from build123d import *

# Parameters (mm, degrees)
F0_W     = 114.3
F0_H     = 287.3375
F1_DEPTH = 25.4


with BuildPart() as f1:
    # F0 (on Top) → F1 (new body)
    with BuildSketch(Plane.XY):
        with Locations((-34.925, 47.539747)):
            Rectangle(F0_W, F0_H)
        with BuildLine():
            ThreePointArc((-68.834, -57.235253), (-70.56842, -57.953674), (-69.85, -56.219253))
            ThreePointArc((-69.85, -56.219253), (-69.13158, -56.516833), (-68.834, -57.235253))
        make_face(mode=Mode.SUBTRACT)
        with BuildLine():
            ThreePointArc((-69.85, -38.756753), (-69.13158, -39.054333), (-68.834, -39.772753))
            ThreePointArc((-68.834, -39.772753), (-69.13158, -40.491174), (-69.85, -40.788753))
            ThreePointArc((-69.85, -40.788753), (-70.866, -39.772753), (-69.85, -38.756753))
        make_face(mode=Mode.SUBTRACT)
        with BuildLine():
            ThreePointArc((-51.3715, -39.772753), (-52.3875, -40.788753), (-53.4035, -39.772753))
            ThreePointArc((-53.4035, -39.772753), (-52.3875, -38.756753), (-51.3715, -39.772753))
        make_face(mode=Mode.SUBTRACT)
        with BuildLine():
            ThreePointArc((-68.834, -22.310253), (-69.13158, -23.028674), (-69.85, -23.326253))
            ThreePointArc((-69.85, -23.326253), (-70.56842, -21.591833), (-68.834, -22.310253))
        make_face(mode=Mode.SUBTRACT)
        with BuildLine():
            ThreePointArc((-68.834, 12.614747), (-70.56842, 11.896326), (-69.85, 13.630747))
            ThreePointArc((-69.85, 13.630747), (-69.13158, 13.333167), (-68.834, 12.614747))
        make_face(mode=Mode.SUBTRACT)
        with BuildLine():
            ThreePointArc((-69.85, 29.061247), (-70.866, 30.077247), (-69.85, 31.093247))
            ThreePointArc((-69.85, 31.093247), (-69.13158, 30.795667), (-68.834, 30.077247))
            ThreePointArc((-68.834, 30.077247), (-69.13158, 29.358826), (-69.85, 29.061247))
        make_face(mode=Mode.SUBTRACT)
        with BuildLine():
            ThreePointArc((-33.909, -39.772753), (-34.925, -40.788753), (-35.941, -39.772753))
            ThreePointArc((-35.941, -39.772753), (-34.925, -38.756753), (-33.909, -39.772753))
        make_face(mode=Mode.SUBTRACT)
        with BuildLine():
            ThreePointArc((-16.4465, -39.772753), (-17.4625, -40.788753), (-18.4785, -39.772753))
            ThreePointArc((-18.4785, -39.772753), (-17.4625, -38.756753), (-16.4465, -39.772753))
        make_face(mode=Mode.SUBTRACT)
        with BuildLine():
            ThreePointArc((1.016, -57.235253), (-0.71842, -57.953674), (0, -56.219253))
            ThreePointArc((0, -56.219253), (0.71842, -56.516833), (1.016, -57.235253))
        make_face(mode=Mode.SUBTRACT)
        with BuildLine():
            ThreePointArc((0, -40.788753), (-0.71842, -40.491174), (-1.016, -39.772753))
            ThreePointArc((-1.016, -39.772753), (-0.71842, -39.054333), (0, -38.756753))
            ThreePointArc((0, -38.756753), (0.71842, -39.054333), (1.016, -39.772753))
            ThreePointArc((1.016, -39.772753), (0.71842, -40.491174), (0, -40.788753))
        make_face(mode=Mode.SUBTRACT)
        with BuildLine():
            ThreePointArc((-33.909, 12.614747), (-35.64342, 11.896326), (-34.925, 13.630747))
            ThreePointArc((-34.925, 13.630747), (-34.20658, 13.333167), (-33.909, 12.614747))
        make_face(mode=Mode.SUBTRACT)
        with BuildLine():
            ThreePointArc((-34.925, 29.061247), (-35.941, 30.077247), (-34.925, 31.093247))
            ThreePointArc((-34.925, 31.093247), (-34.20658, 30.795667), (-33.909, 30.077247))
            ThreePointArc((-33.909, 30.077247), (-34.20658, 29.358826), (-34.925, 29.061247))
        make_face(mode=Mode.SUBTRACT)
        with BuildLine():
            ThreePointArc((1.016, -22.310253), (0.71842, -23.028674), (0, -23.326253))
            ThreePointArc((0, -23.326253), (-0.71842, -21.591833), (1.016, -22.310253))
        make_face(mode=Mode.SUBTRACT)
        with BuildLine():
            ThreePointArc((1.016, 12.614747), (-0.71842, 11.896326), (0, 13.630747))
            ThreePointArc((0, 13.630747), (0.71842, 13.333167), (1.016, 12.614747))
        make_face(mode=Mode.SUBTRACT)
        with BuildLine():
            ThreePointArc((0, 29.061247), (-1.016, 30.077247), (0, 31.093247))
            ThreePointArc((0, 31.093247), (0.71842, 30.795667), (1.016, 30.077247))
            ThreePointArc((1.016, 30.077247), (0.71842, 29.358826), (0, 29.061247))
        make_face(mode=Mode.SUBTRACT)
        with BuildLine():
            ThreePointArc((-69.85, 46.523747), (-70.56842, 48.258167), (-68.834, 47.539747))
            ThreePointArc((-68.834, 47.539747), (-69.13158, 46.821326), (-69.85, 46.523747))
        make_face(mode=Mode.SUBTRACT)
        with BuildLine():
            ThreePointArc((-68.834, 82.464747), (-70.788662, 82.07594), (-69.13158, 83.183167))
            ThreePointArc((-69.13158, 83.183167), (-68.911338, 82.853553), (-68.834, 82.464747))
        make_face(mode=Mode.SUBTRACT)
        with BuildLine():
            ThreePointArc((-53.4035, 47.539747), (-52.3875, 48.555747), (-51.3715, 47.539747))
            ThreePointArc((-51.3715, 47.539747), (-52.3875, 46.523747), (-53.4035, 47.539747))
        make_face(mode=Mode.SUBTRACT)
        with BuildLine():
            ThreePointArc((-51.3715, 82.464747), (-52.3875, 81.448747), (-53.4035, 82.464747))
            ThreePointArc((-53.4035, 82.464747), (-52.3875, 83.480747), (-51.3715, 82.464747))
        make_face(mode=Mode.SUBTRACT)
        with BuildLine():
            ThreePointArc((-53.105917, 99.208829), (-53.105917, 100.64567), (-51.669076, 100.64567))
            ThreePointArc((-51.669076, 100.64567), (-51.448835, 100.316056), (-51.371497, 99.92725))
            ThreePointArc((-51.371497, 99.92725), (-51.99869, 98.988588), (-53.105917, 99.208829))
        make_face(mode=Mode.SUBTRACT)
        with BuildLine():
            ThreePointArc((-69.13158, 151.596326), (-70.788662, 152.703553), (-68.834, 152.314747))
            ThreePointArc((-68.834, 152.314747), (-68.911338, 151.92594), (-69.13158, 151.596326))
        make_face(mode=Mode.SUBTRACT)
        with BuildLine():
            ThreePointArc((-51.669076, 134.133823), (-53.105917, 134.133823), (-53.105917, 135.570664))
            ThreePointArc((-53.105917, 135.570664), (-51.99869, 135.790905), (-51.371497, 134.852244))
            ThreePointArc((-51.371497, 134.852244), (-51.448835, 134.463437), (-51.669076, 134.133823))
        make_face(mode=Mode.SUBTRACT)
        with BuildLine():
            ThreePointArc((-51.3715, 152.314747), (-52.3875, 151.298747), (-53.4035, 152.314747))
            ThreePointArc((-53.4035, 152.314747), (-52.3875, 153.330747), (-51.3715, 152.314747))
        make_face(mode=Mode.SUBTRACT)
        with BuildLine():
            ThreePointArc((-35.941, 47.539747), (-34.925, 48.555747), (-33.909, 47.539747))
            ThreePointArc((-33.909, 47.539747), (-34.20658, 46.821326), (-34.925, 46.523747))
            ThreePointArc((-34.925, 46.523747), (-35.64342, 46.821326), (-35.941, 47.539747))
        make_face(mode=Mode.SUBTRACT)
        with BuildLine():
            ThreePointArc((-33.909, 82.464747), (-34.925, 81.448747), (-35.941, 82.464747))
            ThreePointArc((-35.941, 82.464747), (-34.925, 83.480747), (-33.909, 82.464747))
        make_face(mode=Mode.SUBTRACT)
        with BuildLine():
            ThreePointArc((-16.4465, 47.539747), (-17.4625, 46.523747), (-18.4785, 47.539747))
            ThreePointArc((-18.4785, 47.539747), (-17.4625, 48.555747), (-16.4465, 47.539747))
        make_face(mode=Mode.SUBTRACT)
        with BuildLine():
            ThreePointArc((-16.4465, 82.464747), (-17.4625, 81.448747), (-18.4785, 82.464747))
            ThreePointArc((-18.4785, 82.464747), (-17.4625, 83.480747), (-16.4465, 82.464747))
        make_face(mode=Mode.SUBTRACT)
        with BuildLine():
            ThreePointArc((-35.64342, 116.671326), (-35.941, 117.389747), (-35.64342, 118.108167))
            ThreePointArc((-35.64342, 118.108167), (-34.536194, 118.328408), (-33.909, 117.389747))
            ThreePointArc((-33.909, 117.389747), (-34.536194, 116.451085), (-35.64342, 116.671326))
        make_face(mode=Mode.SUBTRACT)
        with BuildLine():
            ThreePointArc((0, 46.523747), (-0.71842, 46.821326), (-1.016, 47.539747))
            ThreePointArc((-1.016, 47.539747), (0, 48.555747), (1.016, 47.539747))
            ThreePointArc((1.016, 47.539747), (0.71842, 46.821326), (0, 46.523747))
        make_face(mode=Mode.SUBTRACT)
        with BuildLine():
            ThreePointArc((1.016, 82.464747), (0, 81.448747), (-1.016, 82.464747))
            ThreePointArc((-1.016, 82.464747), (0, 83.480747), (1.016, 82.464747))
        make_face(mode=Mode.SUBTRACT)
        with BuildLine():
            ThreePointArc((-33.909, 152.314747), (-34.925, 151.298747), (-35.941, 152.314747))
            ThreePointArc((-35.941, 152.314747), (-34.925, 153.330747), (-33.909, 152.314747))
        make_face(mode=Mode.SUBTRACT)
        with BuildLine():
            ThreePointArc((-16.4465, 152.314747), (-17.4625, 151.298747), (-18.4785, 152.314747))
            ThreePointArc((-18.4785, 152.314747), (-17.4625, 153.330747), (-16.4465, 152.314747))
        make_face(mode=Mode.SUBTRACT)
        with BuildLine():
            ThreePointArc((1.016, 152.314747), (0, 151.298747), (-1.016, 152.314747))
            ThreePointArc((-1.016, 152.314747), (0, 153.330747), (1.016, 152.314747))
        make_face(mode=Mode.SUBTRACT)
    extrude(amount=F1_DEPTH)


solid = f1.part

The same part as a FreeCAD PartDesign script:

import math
import FreeCAD as App
import Part
import Sketcher

V = App.Vector
Q = App.Units.Quantity

doc = App.newDocument("Part")
body = doc.addObject("PartDesign::Body", "Body")

# Sketch on XY plane
sketch1 = body.newObject("Sketcher::SketchObject", "Sketch")
sketch1.AttachmentSupport = (doc.getObject("XY_Plane"), [""])
sketch1.MapMode = "FlatFace"
sketch1.addGeometry([
    Part.LineSegment(V(-92.1, 191.2, 0), V(-92.1, -96.1, 0)),  # 0
    Part.LineSegment(V(-92.1, -96.1, 0), V(22.2, -96.1, 0)),  # 1
    Part.LineSegment(V(22.2, -96.1, 0), V(22.2, 191.2, 0)),  # 2
    Part.LineSegment(V(22.2, 191.2, 0), V(-92.1, 191.2, 0)),  # 3
    Part.ArcOfCircle(Part.Circle(V(-69.9, -57.2, 0), V(0, 0, 1), 1), math.radians(0), math.radians(90)),  # 4
    Part.ArcOfCircle(Part.Circle(V(-69.9, -57.2, 0), V(0, 0, 1), 1), math.radians(90), math.radians(360)),  # 5
    Part.ArcOfCircle(Part.Circle(V(-69.8, -39.8, 0), V(0, 0, 1), 1), math.radians(90), math.radians(270)),  # 6
    Part.ArcOfCircle(Part.Circle(V(-69.9, -39.8, 0), V(0, 0, 1), 1), math.radians(0), math.radians(90)),  # 7
    Part.ArcOfCircle(Part.Circle(V(-69.8, -39.8, 0), V(0, 0, 1), 1), math.radians(-90), math.radians(0)),  # 8
    Part.ArcOfCircle(Part.Circle(V(-69.8, -22.3, 0), V(0, 0, 1), 1), math.radians(0), math.radians(270)),  # 9
    Part.ArcOfCircle(Part.Circle(V(-69.8, -22.3, 0), V(0, 0, 1), 1), math.radians(-90), math.radians(0)),  # 10
    Part.Circle(V(-52.4, -39.8, 0), V(0, 0, 1), 1),  # 11
    Part.ArcOfCircle(Part.Circle(V(-69.9, 12.6, 0), V(0, 0, 1), 1), math.radians(0), math.radians(90)),  # 12
    Part.ArcOfCircle(Part.Circle(V(-69.9, 12.6, 0), V(0, 0, 1), 1), math.radians(90), math.radians(360)),  # 13
    Part.ArcOfCircle(Part.Circle(V(-69.8, 30.1, 0), V(0, 0, 1), 1), math.radians(-90), math.radians(0)),  # 14
    Part.ArcOfCircle(Part.Circle(V(-69.8, 30.1, 0), V(0, 0, 1), 1), math.radians(90), math.radians(270)),  # 15
    Part.ArcOfCircle(Part.Circle(V(-69.9, 30.1, 0), V(0, 0, 1), 1), math.radians(0), math.radians(90)),  # 16
    Part.ArcOfCircle(Part.Circle(V(-69.8, 47.5, 0), V(0, 0, 1), 1), math.radians(-90), math.radians(0)),  # 17
    Part.ArcOfCircle(Part.Circle(V(-69.8, 47.5, 0), V(0, 0, 1), 1), math.radians(0), math.radians(270)),  # 18
    Part.Circle(V(-52.4, 47.5, 0), V(0, 0, 1), 1),  # 19
    Part.Circle(V(-34.9, -39.8, 0), V(0, 0, 1), 1),  # 20
    Part.Circle(V(-17.5, -39.8, 0), V(0, 0, 1), 1),  # 21
    Part.ArcOfCircle(Part.Circle(V(0, -57.2, 0), V(0, 0, 1), 1), math.radians(0), math.radians(90)),  # 22
    Part.ArcOfCircle(Part.Circle(V(0, -57.2, 0), V(0, 0, 1), 1), math.radians(90), math.radians(360)),  # 23
    Part.ArcOfCircle(Part.Circle(V(0, -39.8, 0), V(0, 0, 1), 1), math.radians(-90), math.radians(0)),  # 24
    Part.ArcOfCircle(Part.Circle(V(0, -39.8, 0), V(0, 0, 1), 1), math.radians(180), math.radians(270)),  # 25
    Part.ArcOfCircle(Part.Circle(V(0, -39.8, 0), V(0, 0, 1), 1), math.radians(90), math.radians(180)),  # 26
    Part.ArcOfCircle(Part.Circle(V(0, -39.8, 0), V(0, 0, 1), 1), math.radians(0), math.radians(90)),  # 27
    Part.ArcOfCircle(Part.Circle(V(0, -22.3, 0), V(0, 0, 1), 1), math.radians(0), math.radians(270)),  # 28
    Part.ArcOfCircle(Part.Circle(V(0, -22.3, 0), V(0, 0, 1), 1), math.radians(-90), math.radians(0)),  # 29
    Part.ArcOfCircle(Part.Circle(V(-34.9, 12.6, 0), V(0, 0, 1), 1), math.radians(0), math.radians(90)),  # 30
    Part.ArcOfCircle(Part.Circle(V(-34.9, 12.6, 0), V(0, 0, 1), 1), math.radians(90), math.radians(360)),  # 31
    Part.ArcOfCircle(Part.Circle(V(-34.9, 30.1, 0), V(0, 0, 1), 1), math.radians(-90), math.radians(0)),  # 32
    Part.ArcOfCircle(Part.Circle(V(-34.9, 30.1, 0), V(0, 0, 1), 1), math.radians(90), math.radians(270)),  # 33
    Part.ArcOfCircle(Part.Circle(V(-34.9, 30.1, 0), V(0, 0, 1), 1), math.radians(0), math.radians(90)),  # 34
    Part.ArcOfCircle(Part.Circle(V(-34.9, 47.5, 0), V(0, 0, 1), 1), math.radians(180), math.radians(270)),  # 35
    Part.ArcOfCircle(Part.Circle(V(-34.9, 47.5, 0), V(0, 0, 1), 1), math.radians(0), math.radians(180)),  # 36
    Part.ArcOfCircle(Part.Circle(V(-34.9, 47.5, 0), V(0, 0, 1), 1), math.radians(-90), math.radians(0)),  # 37
    Part.Circle(V(-17.5, 47.5, 0), V(0, 0, 1), 1),  # 38
    Part.ArcOfCircle(Part.Circle(V(0, 12.6, 0), V(0, 0, 1), 1), math.radians(0), math.radians(90)),  # 39
    Part.ArcOfCircle(Part.Circle(V(0, 12.6, 0), V(0, 0, 1), 1), math.radians(90), math.radians(360)),  # 40
    Part.ArcOfCircle(Part.Circle(V(0, 30.1, 0), V(0, 0, 1), 1), math.radians(-90), math.radians(0)),  # 41
    Part.ArcOfCircle(Part.Circle(V(0, 30.1, 0), V(0, 0, 1), 1), math.radians(90), math.radians(270)),  # 42
    Part.ArcOfCircle(Part.Circle(V(0, 30.1, 0), V(0, 0, 1), 1), math.radians(0), math.radians(90)),  # 43
    Part.ArcOfCircle(Part.Circle(V(0, 47.5, 0), V(0, 0, 1), 1), math.radians(-90), math.radians(0)),  # 44
    Part.ArcOfCircle(Part.Circle(V(0, 47.5, 0), V(0, 0, 1), 1), math.radians(180), math.radians(270)),  # 45
    Part.ArcOfCircle(Part.Circle(V(0, 47.5, 0), V(0, 0, 1), 1), math.radians(0), math.radians(180)),  # 46
    Part.ArcOfCircle(Part.Circle(V(-69.8, 82.5, 0), V(0, 0, 1), 1), math.radians(0), math.radians(45)),  # 47
    Part.ArcOfCircle(Part.Circle(V(-69.9, 82.5, 0), V(0, 0, 1), 1), math.radians(45), math.radians(360)),  # 48
    Part.Circle(V(-52.4, 82.5, 0), V(0, 0, 1), 1),  # 49
    Part.ArcOfCircle(Part.Circle(V(-52.4, 99.9, 0), V(0, 0, 1), 1), math.radians(-135), math.radians(0)),  # 50
    Part.ArcOfCircle(Part.Circle(V(-52.4, 99.9, 0), V(0, 0, 1), 1), math.radians(45), math.radians(225)),  # 51
    Part.ArcOfCircle(Part.Circle(V(-52.4, 99.9, 0), V(0, 0, 1), 1), math.radians(0), math.radians(45)),  # 52
    Part.ArcOfCircle(Part.Circle(V(-69.8, 152.3, 0), V(0, 0, 1), 1), math.radians(-45), math.radians(0)),  # 53
    Part.ArcOfCircle(Part.Circle(V(-69.9, 152.3, 0), V(0, 0, 1), 1), math.radians(0), math.radians(315)),  # 54
    Part.ArcOfCircle(Part.Circle(V(-52.4, 134.9, 0), V(0, 0, 1), 1), math.radians(-45), math.radians(0)),  # 55
    Part.ArcOfCircle(Part.Circle(V(-52.4, 134.9, 0), V(0, 0, 1), 1), math.radians(135), math.radians(315)),  # 56
    Part.ArcOfCircle(Part.Circle(V(-52.4, 134.9, 0), V(0, 0, 1), 1), math.radians(0), math.radians(135)),  # 57
    Part.Circle(V(-52.4, 152.3, 0), V(0, 0, 1), 1),  # 58
    Part.Circle(V(-34.9, 82.5, 0), V(0, 0, 1), 1),  # 59
    Part.Circle(V(-17.5, 82.5, 0), V(0, 0, 1), 1),  # 60
    Part.Circle(V(0, 82.5, 0), V(0, 0, 1), 1),  # 61
    Part.ArcOfCircle(Part.Circle(V(-34.9, 117.4, 0), V(0, 0, 1), 1), math.radians(-135), math.radians(0)),  # 62
    Part.ArcOfCircle(Part.Circle(V(-34.9, 117.4, 0), V(0, 0, 1), 1), math.radians(135), math.radians(225)),  # 63
    Part.ArcOfCircle(Part.Circle(V(-34.9, 117.4, 0), V(0, 0, 1), 1), math.radians(0), math.radians(135)),  # 64
    Part.Circle(V(-34.9, 152.3, 0), V(0, 0, 1), 1),  # 65
    Part.Circle(V(-17.5, 152.3, 0), V(0, 0, 1), 1),  # 66
    Part.Circle(V(0, 152.3, 0), V(0, 0, 1), 1),  # 67
], False)
sketch1.addConstraint([
    Sketcher.Constraint("Coincident", 0, 2, 1, 1),
    Sketcher.Constraint("Coincident", 1, 2, 2, 1),
    Sketcher.Constraint("Coincident", 2, 2, 3, 1),
    Sketcher.Constraint("Coincident", 3, 2, 0, 1),
    Sketcher.Constraint("Tangent", 4, 1, 5, 2),
    Sketcher.Constraint("Coincident", 5, 1, 4, 2),
    Sketcher.Constraint("Tangent", 6, 1, 7, 2),
    Sketcher.Constraint("Tangent", 7, 1, 8, 2),
    Sketcher.Constraint("Tangent", 8, 1, 6, 2),
    Sketcher.Constraint("Tangent", 9, 1, 10, 2),
    Sketcher.Constraint("Coincident", 10, 1, 9, 2),
    Sketcher.Constraint("Tangent", 12, 1, 13, 2),
    Sketcher.Constraint("Coincident", 13, 1, 12, 2),
    Sketcher.Constraint("Tangent", 14, 1, 15, 2),
    Sketcher.Constraint("Tangent", 15, 1, 16, 2),
    Sketcher.Constraint("Tangent", 16, 1, 14, 2),
    Sketcher.Constraint("Tangent", 17, 1, 18, 2),
    Sketcher.Constraint("Coincident", 18, 1, 17, 2),
    Sketcher.Constraint("Tangent", 22, 1, 23, 2),
    Sketcher.Constraint("Coincident", 23, 1, 22, 2),
    Sketcher.Constraint("Tangent", 24, 1, 25, 2),
    Sketcher.Constraint("Tangent", 25, 1, 26, 2),
    Sketcher.Constraint("Coincident", 26, 1, 27, 2),
    Sketcher.Constraint("Tangent", 27, 1, 24, 2),
    Sketcher.Constraint("Tangent", 28, 1, 29, 2),
    Sketcher.Constraint("Coincident", 29, 1, 28, 2),
    Sketcher.Constraint("Tangent", 30, 1, 31, 2),
    Sketcher.Constraint("Coincident", 31, 1, 30, 2),
    Sketcher.Constraint("Tangent", 32, 1, 33, 2),
    Sketcher.Constraint("Tangent", 33, 1, 34, 2),
    Sketcher.Constraint("Tangent", 34, 1, 32, 2),
    Sketcher.Constraint("Tangent", 35, 1, 36, 2),
    Sketcher.Constraint("Tangent", 36, 1, 37, 2),
    Sketcher.Constraint("Tangent", 37, 1, 35, 2),
    Sketcher.Constraint("Tangent", 39, 1, 40, 2),
    Sketcher.Constraint("Coincident", 40, 1, 39, 2),
    Sketcher.Constraint("Tangent", 41, 1, 42, 2),
    Sketcher.Constraint("Tangent", 42, 1, 43, 2),
    Sketcher.Constraint("Tangent", 43, 1, 41, 2),
    Sketcher.Constraint("Tangent", 44, 1, 45, 2),
    Sketcher.Constraint("Tangent", 45, 1, 46, 2),
    Sketcher.Constraint("Tangent", 46, 1, 44, 2),
    Sketcher.Constraint("Coincident", 47, 1, 48, 2),
    Sketcher.Constraint("Coincident", 48, 1, 47, 2),
    Sketcher.Constraint("Tangent", 50, 1, 51, 2),
    Sketcher.Constraint("Tangent", 51, 1, 52, 2),
    Sketcher.Constraint("Tangent", 52, 1, 50, 2),
    Sketcher.Constraint("Coincident", 53, 1, 54, 2),
    Sketcher.Constraint("Coincident", 54, 1, 53, 2),
    Sketcher.Constraint("Tangent", 55, 1, 56, 2),
    Sketcher.Constraint("Tangent", 56, 1, 57, 2),
    Sketcher.Constraint("Tangent", 57, 1, 55, 2),
    Sketcher.Constraint("Tangent", 62, 1, 63, 2),
    Sketcher.Constraint("Tangent", 63, 1, 64, 2),
    Sketcher.Constraint("Tangent", 64, 1, 62, 2),
    Sketcher.Constraint("Vertical", 0),
    Sketcher.Constraint("Horizontal", 1),
    Sketcher.Constraint("Vertical", 2),
    Sketcher.Constraint("Horizontal", 3),
    Sketcher.Constraint("Coincident", 26, 3, 24, 3),
    Sketcher.Constraint("Equal", 5, 6),
    Sketcher.Constraint("Equal", 8, 9),
    Sketcher.Constraint("Equal", 10, 11),
    Sketcher.Constraint("Equal", 11, 12),
    Sketcher.Constraint("Equal", 13, 14),
    Sketcher.Constraint("Equal", 16, 17),
    Sketcher.Constraint("Equal", 18, 19),
    Sketcher.Constraint("Equal", 19, 20),
    Sketcher.Constraint("Equal", 20, 21),
    Sketcher.Constraint("Equal", 21, 22),
    Sketcher.Constraint("Equal", 23, 24),
    Sketcher.Constraint("Equal", 27, 28),
    Sketcher.Constraint("Equal", 29, 30),
    Sketcher.Constraint("Equal", 31, 32),
    Sketcher.Constraint("Equal", 34, 35),
    Sketcher.Constraint("Equal", 37, 38),
    Sketcher.Constraint("Equal", 38, 39),
    Sketcher.Constraint("Equal", 40, 41),
    Sketcher.Constraint("Equal", 43, 44),
    Sketcher.Constraint("Equal", 46, 48),
    Sketcher.Constraint("Equal", 48, 49),
    Sketcher.Constraint("Equal", 49, 50),
    Sketcher.Constraint("Equal", 47, 53),
    Sketcher.Constraint("Equal", 51, 54),
    Sketcher.Constraint("Equal", 52, 55),
    Sketcher.Constraint("Equal", 57, 58),
    Sketcher.Constraint("Equal", 58, 59),
    Sketcher.Constraint("Equal", 59, 60),
    Sketcher.Constraint("Equal", 60, 61),
    Sketcher.Constraint("Equal", 61, 62),
    Sketcher.Constraint("Equal", 64, 65),
    Sketcher.Constraint("Equal", 65, 66),
    Sketcher.Constraint("Equal", 66, 67),
    Sketcher.Constraint("Symmetric", 25, 1, 27, 1, -2),
    Sketcher.Constraint("Symmetric", 45, 1, 46, 1, -2),
    Sketcher.Constraint("PointOnObject", 22, 3, -2),
    Sketcher.Constraint("PointOnObject", 28, 3, -2),
    Sketcher.Constraint("PointOnObject", 39, 3, -2),
    Sketcher.Constraint("PointOnObject", 41, 3, -2),
    Sketcher.Constraint("PointOnObject", 61, 3, -2),
    Sketcher.Constraint("PointOnObject", 67, 3, -2),
    Sketcher.Constraint("PointOnObject", 23, 1, -2),
    Sketcher.Constraint("PointOnObject", 24, 1, -2),
    Sketcher.Constraint("PointOnObject", 26, 1, -2),
    Sketcher.Constraint("PointOnObject", 29, 1, -2),
    Sketcher.Constraint("PointOnObject", 40, 1, -2),
    Sketcher.Constraint("PointOnObject", 41, 1, -2),
    Sketcher.Constraint("PointOnObject", 42, 1, -2),
    Sketcher.Constraint("PointOnObject", 44, 1, -2),
    Sketcher.Constraint("Horizontal", 8, 3, 11, 3),
    Sketcher.Constraint("Horizontal", 18, 3, 19, 3),
    Sketcher.Constraint("Horizontal", 11, 3, 20, 3),
    Sketcher.Constraint("Horizontal", 20, 3, 21, 3),
    Sketcher.Constraint("Horizontal", 5, 3, 22, 3),
    Sketcher.Constraint("Horizontal", 21, 3, 24, 3),
    Sketcher.Constraint("Horizontal", 10, 3, 28, 3),
    Sketcher.Constraint("Horizontal", 13, 3, 30, 3),
    Sketcher.Constraint("Horizontal", 16, 3, 32, 3),
    Sketcher.Constraint("Horizontal", 19, 3, 35, 3),
    Sketcher.Constraint("Horizontal", 37, 3, 38, 3),
    Sketcher.Constraint("Horizontal", 31, 3, 39, 3),
    Sketcher.Constraint("Horizontal", 34, 3, 41, 3),
    Sketcher.Constraint("Horizontal", 38, 3, 44, 3),
    Sketcher.Constraint("Horizontal", 48, 3, 49, 3),
    Sketcher.Constraint("Horizontal", 54, 3, 58, 3),
    Sketcher.Constraint("Horizontal", 49, 3, 59, 3),
    Sketcher.Constraint("Horizontal", 59, 3, 60, 3),
    Sketcher.Constraint("Horizontal", 60, 3, 61, 3),
    Sketcher.Constraint("Horizontal", 58, 3, 65, 3),
    Sketcher.Constraint("Horizontal", 65, 3, 66, 3),
    Sketcher.Constraint("Horizontal", 66, 3, 67, 3),
    Sketcher.Constraint("Horizontal", 23, 3, 4, 1),
    Sketcher.Constraint("Horizontal", 27, 3, 7, 1),
    Sketcher.Constraint("Horizontal", 29, 3, 9, 1),
    Sketcher.Constraint("Horizontal", 40, 3, 12, 1),
    Sketcher.Constraint("Horizontal", 43, 3, 16, 1),
    Sketcher.Constraint("Horizontal", 46, 3, 18, 1),
    Sketcher.Constraint("Horizontal", 4, 1, 22, 1),
    Sketcher.Constraint("Horizontal", 7, 1, 25, 1),
    Sketcher.Constraint("Horizontal", 9, 1, 28, 1),
    Sketcher.Constraint("Horizontal", 12, 1, 30, 1),
    Sketcher.Constraint("Horizontal", 16, 1, 34, 1),
    Sketcher.Constraint("Horizontal", 18, 1, 35, 1),
    Sketcher.Constraint("Horizontal", 35, 1, 36, 1),
    Sketcher.Constraint("Horizontal", 30, 1, 39, 1),
    Sketcher.Constraint("Horizontal", 34, 1, 43, 1),
    Sketcher.Constraint("Horizontal", 36, 1, 45, 1),
    Sketcher.Constraint("Horizontal", 61, 3, 47, 1),
    Sketcher.Constraint("Horizontal", 51, 3, 52, 1),
    Sketcher.Constraint("Horizontal", 67, 3, 54, 1),
    Sketcher.Constraint("Horizontal", 56, 3, 57, 1),
    Sketcher.Constraint("Horizontal", 63, 3, 64, 1),
    Sketcher.Constraint("Vertical", 5, 3, 6, 3),
    Sketcher.Constraint("Vertical", 8, 3, 9, 3),
    Sketcher.Constraint("Vertical", 10, 3, 12, 3),
    Sketcher.Constraint("Vertical", 13, 3, 14, 3),
    Sketcher.Constraint("Vertical", 16, 3, 17, 3),
    Sketcher.Constraint("Vertical", 11, 3, 19, 3),
    Sketcher.Constraint("Vertical", 20, 3, 30, 3),
    Sketcher.Constraint("Vertical", 31, 3, 32, 3),
    Sketcher.Constraint("Vertical", 34, 3, 35, 3),
    Sketcher.Constraint("Vertical", 21, 3, 38, 3),
    Sketcher.Constraint("Vertical", 18, 3, 48, 3),
    Sketcher.Constraint("Vertical", 19, 3, 49, 3),
    Sketcher.Constraint("Vertical", 47, 3, 53, 3),
    Sketcher.Constraint("Vertical", 52, 3, 55, 3),
    Sketcher.Constraint("Vertical", 49, 3, 58, 3),
    Sketcher.Constraint("Vertical", 37, 3, 59, 3),
    Sketcher.Constraint("Vertical", 38, 3, 60, 3),
    Sketcher.Constraint("Vertical", 59, 3, 62, 3),
    Sketcher.Constraint("Vertical", 64, 3, 65, 3),
    Sketcher.Constraint("Vertical", 60, 3, 66, 3),
    Sketcher.Constraint("Vertical", 54, 3, 5, 1),
    Sketcher.Constraint("Vertical", 5, 1, 6, 1),
    Sketcher.Constraint("Vertical", 6, 1, 8, 1),
    Sketcher.Constraint("Vertical", 8, 1, 10, 1),
    Sketcher.Constraint("Vertical", 10, 1, 13, 1),
    Sketcher.Constraint("Vertical", 13, 1, 14, 1),
    Sketcher.Constraint("Vertical", 14, 1, 15, 1),
    Sketcher.Constraint("Vertical", 15, 1, 17, 1),
    Sketcher.Constraint("Vertical", 65, 3, 31, 1),
    Sketcher.Constraint("Vertical", 31, 1, 32, 1),
    Sketcher.Constraint("Vertical", 32, 1, 33, 1),
    Sketcher.Constraint("Vertical", 33, 1, 37, 1),
    Sketcher.Constraint("Vertical", 48, 1, 53, 1),
    Sketcher.Constraint("Vertical", 51, 1, 55, 1),
    Sketcher.Constraint("Vertical", 50, 1, 56, 1),
    Sketcher.Constraint("Vertical", 62, 1, 63, 1),
    Sketcher.Constraint("Diameter", 11, Q("0.08 in")),
    Sketcher.Constraint("DistanceX", 1, 1, 1, 2, Q("4.5 in")),
    Sketcher.Constraint("DistanceY", 0, 2, 0, 1, Q("11.3125 in")),
    Sketcher.Constraint("DistanceX", 4, 3, -1, 1, Q("2.7500001 in")),
    Sketcher.Constraint("DistanceX", 11, 3, -1, 1, Q("2.0625 in")),
    Sketcher.Constraint("DistanceX", 20, 3, -1, 1, Q("1.375 in")),
    Sketcher.Constraint("DistanceX", 21, 3, -1, 1, Q("0.6875 in")),
    Sketcher.Constraint("DistanceX", 50, 3, -1, 1, Q("2.0624999 in")),
    Sketcher.Constraint("DistanceX", 0, 2, -1, 1, Q("3.625 in")),
    Sketcher.Constraint("Radius", 47, Q("1.015993 mm")),
    Sketcher.Constraint("DistanceY", -1, 1, 47, 3, Q("82.464749 mm")),
    Sketcher.Constraint("DistanceY", -1, 1, 50, 3, Q("99.927249 mm")),
    Sketcher.Constraint("DistanceY", -1, 1, 55, 3, Q("134.852242 mm")),
    Sketcher.Constraint("DistanceX", 48, 1, -1, 1, Q("69.13158 mm")),
    Sketcher.Constraint("DistanceY", -1, 1, 50, 1, Q("99.208829 mm")),
    Sketcher.Constraint("DistanceY", -1, 1, 51, 1, Q("100.64567 mm")),
    Sketcher.Constraint("DistanceX", 62, 1, -1, 1, Q("35.64342 mm")),
    Sketcher.Constraint("DistanceY", 4, 3, -1, 1, Q("57.235255 mm")),
    Sketcher.Constraint("DistanceY", 6, 3, -1, 1, Q("39.772753 mm")),
    Sketcher.Constraint("DistanceY", 9, 3, -1, 1, Q("22.310253 mm")),
    Sketcher.Constraint("DistanceY", -1, 1, 12, 3, Q("12.614745 mm")),
    Sketcher.Constraint("DistanceY", -1, 1, 14, 3, Q("30.077247 mm")),
    Sketcher.Constraint("DistanceY", -1, 1, 17, 3, Q("47.539747 mm")),
    Sketcher.Constraint("DistanceY", -1, 1, 53, 3, Q("152.314744 mm")),
    Sketcher.Constraint("DistanceY", -1, 1, 62, 3, Q("117.389747 mm")),
    Sketcher.Constraint("DistanceY", 0, 2, -1, 1, Q("96.129003 mm")),
])
pad1 = body.newObject("PartDesign::Pad", "Pad")
pad1.Profile = sketch1
pad1.Length = Q("1 in")

doc.recompute()
